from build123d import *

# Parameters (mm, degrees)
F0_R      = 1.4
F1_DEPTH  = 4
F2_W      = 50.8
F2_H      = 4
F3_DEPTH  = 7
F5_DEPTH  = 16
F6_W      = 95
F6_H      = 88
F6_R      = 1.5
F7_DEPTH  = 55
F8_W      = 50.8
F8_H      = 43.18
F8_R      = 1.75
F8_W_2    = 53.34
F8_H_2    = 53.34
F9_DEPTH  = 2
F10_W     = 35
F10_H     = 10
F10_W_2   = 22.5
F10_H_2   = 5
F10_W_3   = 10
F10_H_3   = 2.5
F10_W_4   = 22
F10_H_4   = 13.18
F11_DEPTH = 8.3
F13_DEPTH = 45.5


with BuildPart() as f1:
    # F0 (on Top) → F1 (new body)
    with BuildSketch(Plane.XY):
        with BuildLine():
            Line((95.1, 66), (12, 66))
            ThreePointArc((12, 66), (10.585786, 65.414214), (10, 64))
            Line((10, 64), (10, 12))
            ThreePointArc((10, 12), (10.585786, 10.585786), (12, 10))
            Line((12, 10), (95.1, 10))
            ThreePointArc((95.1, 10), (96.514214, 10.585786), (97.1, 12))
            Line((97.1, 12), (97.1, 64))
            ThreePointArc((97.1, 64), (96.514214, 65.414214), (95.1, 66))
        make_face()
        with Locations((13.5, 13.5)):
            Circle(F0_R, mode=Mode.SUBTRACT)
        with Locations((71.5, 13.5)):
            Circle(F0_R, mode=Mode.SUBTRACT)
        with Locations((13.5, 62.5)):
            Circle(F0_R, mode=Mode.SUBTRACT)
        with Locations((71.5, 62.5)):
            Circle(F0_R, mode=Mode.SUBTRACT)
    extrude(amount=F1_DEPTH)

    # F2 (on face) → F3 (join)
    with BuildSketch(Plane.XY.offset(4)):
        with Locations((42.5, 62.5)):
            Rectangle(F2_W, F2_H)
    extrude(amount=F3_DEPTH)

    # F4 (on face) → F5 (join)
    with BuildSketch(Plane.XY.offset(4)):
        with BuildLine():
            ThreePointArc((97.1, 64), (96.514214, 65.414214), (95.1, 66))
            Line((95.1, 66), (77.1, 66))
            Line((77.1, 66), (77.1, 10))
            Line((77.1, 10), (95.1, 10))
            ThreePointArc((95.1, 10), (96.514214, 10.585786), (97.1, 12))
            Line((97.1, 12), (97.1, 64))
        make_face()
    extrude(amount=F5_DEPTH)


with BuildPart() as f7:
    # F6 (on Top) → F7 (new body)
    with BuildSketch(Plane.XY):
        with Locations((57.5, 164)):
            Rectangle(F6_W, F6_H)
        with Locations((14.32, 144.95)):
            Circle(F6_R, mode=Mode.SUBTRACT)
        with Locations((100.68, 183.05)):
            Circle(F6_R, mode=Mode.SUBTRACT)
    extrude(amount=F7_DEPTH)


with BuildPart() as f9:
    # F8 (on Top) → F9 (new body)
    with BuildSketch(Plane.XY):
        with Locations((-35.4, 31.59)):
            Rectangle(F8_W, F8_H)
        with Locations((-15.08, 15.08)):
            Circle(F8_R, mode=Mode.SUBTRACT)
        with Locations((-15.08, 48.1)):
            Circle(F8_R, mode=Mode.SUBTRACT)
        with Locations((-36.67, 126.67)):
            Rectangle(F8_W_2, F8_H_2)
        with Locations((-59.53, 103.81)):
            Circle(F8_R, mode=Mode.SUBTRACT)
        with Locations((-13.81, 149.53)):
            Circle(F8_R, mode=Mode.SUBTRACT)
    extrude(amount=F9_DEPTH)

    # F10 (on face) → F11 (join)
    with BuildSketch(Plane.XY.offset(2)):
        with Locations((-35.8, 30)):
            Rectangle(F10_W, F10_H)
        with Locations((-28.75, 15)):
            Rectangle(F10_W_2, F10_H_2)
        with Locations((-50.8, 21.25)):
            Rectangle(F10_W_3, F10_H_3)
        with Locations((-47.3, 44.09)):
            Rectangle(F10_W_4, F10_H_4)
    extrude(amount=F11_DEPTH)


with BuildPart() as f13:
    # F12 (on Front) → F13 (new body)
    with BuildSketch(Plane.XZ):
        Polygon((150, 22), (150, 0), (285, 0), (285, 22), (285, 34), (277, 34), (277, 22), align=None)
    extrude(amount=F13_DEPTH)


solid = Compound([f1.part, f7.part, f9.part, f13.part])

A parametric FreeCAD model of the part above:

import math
import FreeCAD as App
import Part
import Sketcher


def add_polygon(sketch, points):
    """Adds a closed chain of lines whose ends are joined by coincident constraints."""
    first, n = sketch.GeometryCount, len(points)
    for a, b in zip(points, points[1:] + points[:1]):
        sketch.addGeometry(Part.LineSegment(App.Vector(*a, 0), App.Vector(*b, 0)), False)
    for i in range(n):
        sketch.addConstraint(Sketcher.Constraint("Coincident", first + i, 2, first + (i + 1) % n, 1))

doc = App.newDocument("Part")
params = doc.addObject("Spreadsheet::Sheet", "Params")
for row, (alias, value) in enumerate([
    ("sketch1_radius", "1.999999 mm"),
    ("sketch1_diameter", "2.8 mm"),
    ("sketch1_height", "52 mm"),
    ("sketch1_width", "83.1 mm"),
    ("pad1_length", "4 mm"),
    ("sketch2_height", "4 mm"),
    ("sketch2_width", "50.8 mm"),
    ("pad2_length", "7 mm"),
    ("sketch3_radius", "1.999999 mm"),
    ("sketch3_width", "18 mm"),
    ("sketch3_height", "56 mm"),
    ("pad3_length", "16 mm"),
    ("sketch4_diameter", "3 mm"),
    ("sketch4_width", "95 mm"),
    ("sketch4_height", "88 mm"),
    ("pad4_length", "55 mm"),
    ("sketch5_diameter", "3.5 mm"),
    ("sketch5_width", "50.8 mm"),
    ("sketch5_width2", "53.34 mm"),
    ("sketch5_height", "43.18 mm"),
    ("pad5_length", "2 mm"),
    ("sketch6_width", "35 mm"),
    ("sketch6_width2", "10 mm"),
    ("sketch6_width3", "22 mm"),
    ("sketch6_height", "5 mm"),
    ("sketch6_width4", "22.5 mm"),
    ("pad6_length", "8.3 mm"),
    ("sketch7_width", "135 mm"),
    ("sketch7_width2", "8 mm"),
    ("sketch7_height", "22 mm"),
    ("sketch7_height2", "34 mm"),
    ("pad7_length", "45.5 mm"),
], start=1):
    params.set(f"A{row}", alias)
    params.set(f"B{row}", "=" + value)
    params.setAlias(f"B{row}", alias)

body = doc.addObject("PartDesign::Body", "Body")

sketch1 = doc.addObject("Sketcher::SketchObject", "Sketch")
body.addObject(sketch1)
sketch1.AttachmentSupport = (doc.XY_Plane, [""])
sketch1.MapMode = "FlatFace"
sketch1.addGeometry([
    Part.LineSegment(App.Vector(95.1, 66, 0), App.Vector(12, 66, 0)),
    Part.ArcOfCircle(Part.Circle(App.Vector(12, 64, 0), App.Vector(0, 0, 1), 2), math.radians(90), math.radians(180)),
    Part.LineSegment(App.Vector(10, 64, 0), App.Vector(10, 12, 0)),
    Part.ArcOfCircle(Part.Circle(App.Vector(12, 12, 0), App.Vector(0, 0, 1), 2), math.radians(180), math.radians(270)),
    Part.LineSegment(App.Vector(12, 10, 0), App.Vector(95.1, 10, 0)),
    Part.ArcOfCircle(Part.Circle(App.Vector(95.1, 12, 0), App.Vector(0, 0, 1), 2), math.radians(-90), math.radians(0)),
    Part.LineSegment(App.Vector(97.1, 12, 0), App.Vector(97.1, 64, 0)),
    Part.ArcOfCircle(Part.Circle(App.Vector(95.1, 64, 0), App.Vector(0, 0, 1), 2), math.radians(0), math.radians(90)),
    Part.Circle(App.Vector(13.5, 13.5, 0), App.Vector(0, 0, 1), 1.4),
    Part.Circle(App.Vector(71.5, 13.5, 0), App.Vector(0, 0, 1), 1.4),
    Part.Circle(App.Vector(13.5, 62.5, 0), App.Vector(0, 0, 1), 1.4),
    Part.Circle(App.Vector(71.5, 62.5, 0), App.Vector(0, 0, 1), 1.4),
], False)
sketch1.addConstraint([
    Sketcher.Constraint("Tangent", 0, 2, 1, 1),
    Sketcher.Constraint("Tangent", 1, 2, 2, 1),
    Sketcher.Constraint("Tangent", 2, 2, 3, 1),
    Sketcher.Constraint("Tangent", 3, 2, 4, 1),
    Sketcher.Constraint("Tangent", 4, 2, 5, 1),
    Sketcher.Constraint("Tangent", 5, 2, 6, 1),
    Sketcher.Constraint("Tangent", 6, 2, 7, 1),
    Sketcher.Constraint("Tangent", 7, 2, 0, 1),
    Sketcher.Constraint("Horizontal", 0),
    Sketcher.Constraint("Vertical", 2),
    Sketcher.Constraint("Horizontal", 4),
    Sketcher.Constraint("Vertical", 6),
    Sketcher.Constraint("Equal", 1, 3),
    Sketcher.Constraint("Equal", 3, 5),
    Sketcher.Constraint("Equal", 5, 7),
    Sketcher.Constraint("Equal", 8, 9),
    Sketcher.Constraint("Equal", 9, 10),
    Sketcher.Constraint("Equal", 10, 11),
    Sketcher.Constraint("Horizontal", 8, 3, 9, 3),
    Sketcher.Constraint("Horizontal", 10, 3, 11, 3),
    Sketcher.Constraint("Vertical", 8, 3, 10, 3),
    Sketcher.Constraint("Vertical", 9, 3, 11, 3),
    Sketcher.Constraint("Radius", 1, 1.999999),
    Sketcher.Constraint("Diameter", 8, 2.8),
    Sketcher.Constraint("DistanceY", 2, 2, 2, 1, 52.0),
    Sketcher.Constraint("DistanceX", 0, 2, 0, 1, 83.1),
    Sketcher.Constraint("DistanceX", -1, 1, 1, 3, 11.999999),
    Sketcher.Constraint("DistanceY", -1, 1, 1, 3, 64.000001),
    Sketcher.Constraint("DistanceX", 8, 3, 9, 3, 58.0),
    Sketcher.Constraint("DistanceY", 8, 3, 10, 3, 49.0),
    Sketcher.Constraint("DistanceX", -1, 1, 8, 3, 13.5),
    Sketcher.Constraint("DistanceY", -1, 1, 8, 3, 13.5),
])
sketch1.setExpression("Constraints[22]", "Params.sketch1_radius")
sketch1.setExpression("Constraints[23]", "Params.sketch1_diameter")
sketch1.setExpression("Constraints[24]", "Params.sketch1_height")
sketch1.setExpression("Constraints[25]", "Params.sketch1_width")
pad1 = doc.addObject("PartDesign::Pad", "Pad")
body.addObject(pad1)
pad1.Profile = sketch1
pad1.setExpression("Length", "Params.pad1_length")

sketch2 = doc.addObject("Sketcher::SketchObject", "Sketch001")
body.addObject(sketch2)
sketch2.AttachmentSupport = (doc.XY_Plane, [""])
sketch2.MapMode = "FlatFace"
sketch2.AttachmentOffset = App.Placement(App.Vector(0, 0, 4), App.Rotation())
add_polygon(sketch2, [(17.1, 64.5), (17.1, 60.5), (67.9, 60.5), (67.9, 64.5)])
sketch2.addConstraint([
    Sketcher.Constraint("Vertical", 0),
    Sketcher.Constraint("Horizontal", 1),
    Sketcher.Constraint("Vertical", 2),
    Sketcher.Constraint("Horizontal", 3),
    Sketcher.Constraint("DistanceY", 0, 2, 0, 1, 4.0),
    Sketcher.Constraint("DistanceX", 1, 1, 1, 2, 50.8),
    Sketcher.Constraint("DistanceX", -1, 1, 0, 2, 17.1),
    Sketcher.Constraint("DistanceY", -1, 1, 0, 2, 60.5),
])
sketch2.setExpression("Constraints[8]", "Params.sketch2_height")
sketch2.setExpression("Constraints[9]", "Params.sketch2_width")
pad2 = doc.addObject("PartDesign::Pad", "Pad001")
body.addObject(pad2)
pad2.Profile = sketch2
pad2.setExpression("Length", "Params.pad2_length")

sketch3 = doc.addObject("Sketcher::SketchObject", "Sketch002")
body.addObject(sketch3)
sketch3.AttachmentSupport = (doc.XY_Plane, [""])
sketch3.MapMode = "FlatFace"
sketch3.AttachmentOffset = App.Placement(App.Vector(0, 0, 4), App.Rotation())
sketch3.addGeometry([
    Part.ArcOfCircle(Part.Circle(App.Vector(95.1, 64, 0), App.Vector(0, 0, 1), 2), math.radians(0), math.radians(90)),
    Part.LineSegment(App.Vector(95.1, 66, 0), App.Vector(77.1, 66, 0)),
    Part.LineSegment(App.Vector(77.1, 66, 0), App.Vector(77.1, 10, 0)),
    Part.LineSegment(App.Vector(77.1, 10, 0), App.Vector(95.1, 10, 0)),
    Part.ArcOfCircle(Part.Circle(App.Vector(95.1, 12, 0), App.Vector(0, 0, 1), 2), math.radians(-90), math.radians(0)),
    Part.LineSegment(App.Vector(97.1, 12, 0), App.Vector(97.1, 64, 0)),
], False)
sketch3.addConstraint([
    Sketcher.Constraint("Tangent", 0, 2, 1, 1),
    Sketcher.Constraint("Coincident", 1, 2, 2, 1),
    Sketcher.Constraint("Coincident", 2, 2, 3, 1),
    Sketcher.Constraint("Tangent", 3, 2, 4, 1),
    Sketcher.Constraint("Tangent", 4, 2, 5, 1),
    Sketcher.Constraint("Tangent", 5, 2, 0, 1),
    Sketcher.Constraint("Horizontal", 1),
    Sketcher.Constraint("Vertical", 2),
    Sketcher.Constraint("Horizontal", 3),
    Sketcher.Constraint("Vertical", 5),
    Sketcher.Constraint("Equal", 0, 4),
    Sketcher.Constraint("Radius", 0, 1.999999),
    Sketcher.Constraint("DistanceX", 1, 2, 1, 1, 18.0),
    Sketcher.Constraint("DistanceY", 2, 2, 2, 1, 56.0),
    Sketcher.Constraint("DistanceY", -1, 1, 0, 3, 64.000001),
    Sketcher.Constraint("DistanceX", -1, 1, 0, 3, 95.100001),
])
sketch3.setExpression("Constraints[11]", "Params.sketch3_radius")
sketch3.setExpression("Constraints[12]", "Params.sketch3_width")
sketch3.setExpression("Constraints[13]", "Params.sketch3_height")
pad3 = doc.addObject("PartDesign::Pad", "Pad002")
body.addObject(pad3)
pad3.Profile = sketch3
pad3.setExpression("Length", "Params.pad3_length")
body2 = doc.addObject("PartDesign::Body", "Body001")

sketch4 = doc.addObject("Sketcher::SketchObject", "Sketch003")
body2.addObject(sketch4)
sketch4.AttachmentSupport = (doc.getObject("XY_Plane001"), [""])
sketch4.MapMode = "FlatFace"
add_polygon(sketch4, [(10, 208), (10, 120), (105, 120), (105, 208)])
sketch4.addGeometry(Part.Circle(App.Vector(14.3, 144.9, 0), App.Vector(0, 0, 1), 1.5), False)
sketch4.addGeometry(Part.Circle(App.Vector(100.7, 183.1, 0), App.Vector(0, 0, 1), 1.5), False)
sketch4.addConstraint([
    Sketcher.Constraint("Vertical", 0),
    Sketcher.Constraint("Horizontal", 1),
    Sketcher.Constraint("Vertical", 2),
    Sketcher.Constraint("Horizontal", 3),
    Sketcher.Constraint("Equal", 4, 5),
    Sketcher.Constraint("Diameter", 4, 3.0),
    Sketcher.Constraint("DistanceX", 1, 1, 1, 2, 95.0),
    Sketcher.Constraint("DistanceY", 0, 2, 0, 1, 88.0),
    Sketcher.Constraint("DistanceX", -1, 1, 0, 2, 10.0),
    Sketcher.Constraint("DistanceY", -1, 1, 0, 2, 120.0),
    Sketcher.Constraint("DistanceY", 4, 3, 5, 3, 38.1),
    Sketcher.Constraint("DistanceX", -1, 1, 4, 3, 14.32),
    Sketcher.Constraint("DistanceY", -1, 1, 4, 3, 144.95),
    Sketcher.Constraint("DistanceX", -1, 1, 5, 3, 100.68),
])
sketch4.setExpression("Constraints[9]", "Params.sketch4_diameter")
sketch4.setExpression("Constraints[10]", "Params.sketch4_width")
sketch4.setExpression("Constraints[11]", "Params.sketch4_height")
pad4 = doc.addObject("PartDesign::Pad", "Pad003")
body2.addObject(pad4)
pad4.Profile = sketch4
pad4.setExpression("Length", "Params.pad4_length")
body3 = doc.addObject("PartDesign::Body", "Body002")
body3.AllowCompound = True

sketch5 = doc.addObject("Sketcher::SketchObject", "Sketch004")
body3.addObject(sketch5)
sketch5.AttachmentSupport = (doc.getObject("XY_Plane002"), [""])
sketch5.MapMode = "FlatFace"
add_polygon(sketch5, [(-60.8, 53.2), (-60.8, 10), (-10, 10), (-10, 53.2)])
sketch5.addGeometry(Part.Circle(App.Vector(-15.1, 15.1, 0), App.Vector(0, 0, 1), 1.8), False)
sketch5.addGeometry(Part.Circle(App.Vector(-15.1, 48.1, 0), App.Vector(0, 0, 1), 1.8), False)
add_polygon(sketch5, [(-63.3, 153.3), (-63.3, 100), (-10, 100), (-10, 153.3)])
sketch5.addGeometry(Part.Circle(App.Vector(-59.5, 103.8, 0), App.Vector(0, 0, 1), 1.8), False)
sketch5.addGeometry(Part.Circle(App.Vector(-13.8, 149.5, 0), App.Vector(0, 0, 1), 1.8), False)
sketch5.addConstraint([
    Sketcher.Constraint("Vertical", 0),
    Sketcher.Constraint("Horizontal", 1),
    Sketcher.Constraint("Vertical", 2),
    Sketcher.Constraint("Horizontal", 3),
    Sketcher.Constraint("Vertical", 6),
    Sketcher.Constraint("Horizontal", 7),
    Sketcher.Constraint("Vertical", 8),
    Sketcher.Constraint("Horizontal", 9),
    Sketcher.Constraint("Equal", 4, 5),
    Sketcher.Constraint("Equal", 5, 10),
    Sketcher.Constraint("Equal", 10, 11),
    Sketcher.Constraint("Vertical", 4, 3, 5, 3),
    Sketcher.Constraint("Vertical", 2, 2, 7, 2),
    Sketcher.Constraint("Equal", 9, 6),
    Sketcher.Constraint("Diameter", 4, 3.5),
    Sketcher.Constraint("DistanceX", 1, 1, 1, 2, 50.8),
    Sketcher.Constraint("DistanceY", -1, 1, 0, 2, 10.0),
    Sketcher.Constraint("DistanceX", 1, 2, -1, 1, 10.0),
    Sketcher.Constraint("DistanceY", -1, 1, 6, 2, 100.0),
    Sketcher.Constraint("DistanceX", 7, 1, 7, 2, 53.34),
    Sketcher.Constraint("DistanceY", 0, 2, 0, 1, 43.18),
    Sketcher.Constraint("DistanceY", -1, 1, 5, 3, 48.1),
    Sketcher.Constraint("DistanceY", 4, 3, 2, 2, 38.1),
    Sketcher.Constraint("DistanceX", 4, 3, -1, 1, 15.08),
    Sketcher.Constraint("DistanceX", 10, 3, -1, 1, 59.53),
    Sketcher.Constraint("DistanceY", -1, 1, 10, 3, 103.81),
    Sketcher.Constraint("DistanceX", 11, 3, -1, 1, 13.81),
    Sketcher.Constraint("DistanceY", -1, 1, 11, 3, 149.53),
])
sketch5.setExpression("Constraints[22]", "Params.sketch5_diameter")
sketch5.setExpression("Constraints[23]", "Params.sketch5_width")
sketch5.setExpression("Constraints[27]", "Params.sketch5_width2")
sketch5.setExpression("Constraints[28]", "Params.sketch5_height")
pad5 = doc.addObject("PartDesign::Pad", "Pad004")
body3.addObject(pad5)
pad5.Profile = sketch5
pad5.setExpression("Length", "Params.pad5_length")

sketch6 = doc.addObject("Sketcher::SketchObject", "Sketch005")
body3.addObject(sketch6)
sketch6.AttachmentSupport = (doc.getObject("XY_Plane002"), [""])
sketch6.MapMode = "FlatFace"
sketch6.AttachmentOffset = App.Placement(App.Vector(0, 0, 2), App.Rotation())
add_polygon(sketch6, [(-53.3, 35), (-53.3, 25), (-18.3, 25), (-18.3, 35)])
add_polygon(sketch6, [(-40, 17.5), (-40, 12.5), (-17.5, 12.5), (-17.5, 17.5)])
add_polygon(sketch6, [(-55.8, 22.5), (-55.8, 20), (-45.8, 20), (-45.8, 22.5)])
add_polygon(sketch6, [(-58.3, 50.7), (-58.3, 37.5), (-36.3, 37.5), (-36.3, 50.7)])
sketch6.addConstraint([
    Sketcher.Constraint("Vertical", 0),
    Sketcher.Constraint("Horizontal", 1),
    Sketcher.Constraint("Vertical", 2),
    Sketcher.Constraint("Horizontal", 3),
    Sketcher.Constraint("Vertical", 4),
    Sketcher.Constraint("Horizontal", 5),
    Sketcher.Constraint("Vertical", 6),
    Sketcher.Constraint("Horizontal", 7),
    Sketcher.Constraint("Vertical", 8),
    Sketcher.Constraint("Horizontal", 9),
    Sketcher.Constraint("Vertical", 10),
    Sketcher.Constraint("Horizontal", 11),
    Sketcher.Constraint("Vertical", 12),
    Sketcher.Constraint("Horizontal", 13),
    Sketcher.Constraint("Vertical", 14),
    Sketcher.Constraint("Horizontal", 15),
    Sketcher.Constraint("Equal", 11, 0),
    Sketcher.Constraint("DistanceX", 1, 1, 1, 2, 35.0),
    Sketcher.Constraint("DistanceX", 9, 1, 9, 2, 10.0),
    Sketcher.Constraint("DistanceX", 13, 1, 13, 2, 22.0),
    Sketcher.Constraint("DistanceY", 4, 2, 4, 1, 5.0),
    Sketcher.Constraint("DistanceX", 5, 1, 5, 2, 22.5),
    Sketcher.Constraint("DistanceY", 8, 2, 8, 1, 2.5),
    Sketcher.Constraint("DistanceY", -1, 1, 0, 2, 25.0),
    Sketcher.Constraint("DistanceX", 4, 2, -1, 1, 40.0),
    Sketcher.Constraint("DistanceY", -1, 1, 8, 2, 20.0),
    Sketcher.Constraint("DistanceY", 7, 2, 10, 2, 5.0),
    Sketcher.Constraint("DistanceX", 12, 2, 3, 2, 5.0),
    Sketcher.Constraint("DistanceY", 11, 2, 12, 2, 15.0),
    Sketcher.Constraint("DistanceY", 12, 2, 12, 1, 13.18),
    Sketcher.Constraint("DistanceX", 0, 2, -1, 1, 53.3),
    Sketcher.Constraint("DistanceX", 8, 2, -1, 1, 55.8),
])
sketch6.setExpression("Constraints[33]", "Params.sketch6_width")
sketch6.setExpression("Constraints[34]", "Params.sketch6_width2")
sketch6.setExpression("Constraints[35]", "Params.sketch6_width3")
sketch6.setExpression("Constraints[36]", "Params.sketch6_height")
sketch6.setExpression("Constraints[37]", "Params.sketch6_width4")
pad6 = doc.addObject("PartDesign::Pad", "Pad005")
body3.addObject(pad6)
pad6.Profile = sketch6
pad6.setExpression("Length", "Params.pad6_length")
body4 = doc.addObject("PartDesign::Body", "Body003")

sketch7 = doc.addObject("Sketcher::SketchObject", "Sketch006")
body4.addObject(sketch7)
sketch7.AttachmentSupport = (doc.getObject("XZ_Plane003"), [""])
sketch7.MapMode = "FlatFace"
add_polygon(sketch7, [(150, 22), (150, 0), (285, 0), (285, 34), (277, 34), (277, 22)])
sketch7.addConstraint([
    Sketcher.Constraint("Vertical", 0),
    Sketcher.Constraint("Horizontal", 1),
    Sketcher.Constraint("Vertical", 2),
    Sketcher.Constraint("Horizontal", 3),
    Sketcher.Constraint("Vertical", 4),
    Sketcher.Constraint("Horizontal", 5),
    Sketcher.Constraint("PointOnObject", 0, 2, -1),
    Sketcher.Constraint("DistanceX", 1, 1, 1, 2, 135.0),
    Sketcher.Constraint("DistanceX", 3, 2, 3, 1, 8.0),
    Sketcher.Constraint("DistanceY", 0, 2, 0, 1, 22.0),
    Sketcher.Constraint("DistanceY", 2, 1, 2, 2, 34.0),
    Sketcher.Constraint("DistanceX", -1, 1, 0, 2, 150.0),
])
sketch7.setExpression("Constraints[13]", "Params.sketch7_width")
sketch7.setExpression("Constraints[14]", "Params.sketch7_width2")
sketch7.setExpression("Constraints[15]", "Params.sketch7_height")
sketch7.setExpression("Constraints[16]", "Params.sketch7_height2")
pad7 = doc.addObject("PartDesign::Pad", "Pad006")
body4.addObject(pad7)
pad7.Profile = sketch7
pad7.setExpression("Length", "Params.pad7_length")

doc.recompute()
